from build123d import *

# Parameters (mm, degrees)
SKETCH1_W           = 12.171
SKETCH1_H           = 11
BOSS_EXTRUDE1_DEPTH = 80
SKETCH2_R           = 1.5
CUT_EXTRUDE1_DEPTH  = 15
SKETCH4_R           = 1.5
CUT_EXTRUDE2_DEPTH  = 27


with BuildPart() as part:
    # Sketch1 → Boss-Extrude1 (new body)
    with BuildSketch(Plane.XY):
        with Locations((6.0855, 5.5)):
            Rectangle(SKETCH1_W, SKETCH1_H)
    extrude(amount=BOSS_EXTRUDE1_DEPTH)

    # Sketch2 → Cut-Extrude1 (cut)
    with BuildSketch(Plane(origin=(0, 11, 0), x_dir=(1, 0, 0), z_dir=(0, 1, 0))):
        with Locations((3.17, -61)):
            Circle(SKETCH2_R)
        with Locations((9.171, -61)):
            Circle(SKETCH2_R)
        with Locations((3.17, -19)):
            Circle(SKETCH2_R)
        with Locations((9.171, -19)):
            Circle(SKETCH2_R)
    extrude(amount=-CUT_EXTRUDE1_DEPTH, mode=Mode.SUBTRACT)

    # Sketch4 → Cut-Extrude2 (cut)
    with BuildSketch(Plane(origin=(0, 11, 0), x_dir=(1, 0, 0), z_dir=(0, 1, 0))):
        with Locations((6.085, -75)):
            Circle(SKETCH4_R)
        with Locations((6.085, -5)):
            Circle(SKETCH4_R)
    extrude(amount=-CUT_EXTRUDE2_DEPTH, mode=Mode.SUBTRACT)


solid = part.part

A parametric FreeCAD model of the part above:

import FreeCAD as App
import Part
import Sketcher

doc = App.newDocument("Part")
params = doc.addObject("Spreadsheet::Sheet", "Params")
for row, (alias, value) in enumerate([
    ("sketch1_height", "11 mm"),
    ("pad1_length", "80 mm"),
    ("sketch2_diameter", "3 mm"),
    ("pocket1_length", "15 mm"),
    ("sketch3_diameter", "3 mm"),
    ("pocket2_length", "27 mm"),
], start=1):
    params.set(f"A{row}", alias)
    params.set(f"B{row}", "=" + value)
    params.setAlias(f"B{row}", alias)

body = doc.addObject("PartDesign::Body", "Body")

# Sketch on XY plane
sketch1 = body.newObject("Sketcher::SketchObject", "Sketch")
sketch1.AttachmentSupport = (doc.getObject("XY_Plane"), [""])
sketch1.MapMode = "FlatFace"
sketch1.addGeometry(Part.LineSegment(App.Vector(0, 11, 0), App.Vector(0, 0, 0)), False)
sketch1.addGeometry(Part.LineSegment(App.Vector(0, 0, 0), App.Vector(12, 0, 0)), False)
sketch1.addGeometry(Part.LineSegment(App.Vector(12, 0, 0), App.Vector(12, 11, 0)), False)
sketch1.addGeometry(Part.LineSegment(App.Vector(12, 11, 0), App.Vector(0, 11, 0)), False)
sketch1.addConstraint(Sketcher.Constraint("Coincident", 0, 2, 1, 1))
sketch1.addConstraint(Sketcher.Constraint("Coincident", 1, 2, 2, 1))
sketch1.addConstraint(Sketcher.Constraint("Coincident", 2, 2, 3, 1))
sketch1.addConstraint(Sketcher.Constraint("Coincident", 3, 2, 0, 1))
sketch1.addConstraint(Sketcher.Constraint("Vertical", 0))
sketch1.addConstraint(Sketcher.Constraint("Horizontal", 1))
sketch1.addConstraint(Sketcher.Constraint("Vertical", 2))
sketch1.addConstraint(Sketcher.Constraint("Horizontal", 3))
sketch1.addConstraint(Sketcher.Constraint("Coincident", 0, 2, -1, 1))
sketch1.addConstraint(Sketcher.Constraint("DistanceY", 0, 2, 0, 1, 11.0))
sketch1.addConstraint(Sketcher.Constraint("DistanceX", 1, 1, 1, 2, 12.171))
sketch1.setExpression("Constraints[9]", "Params.sketch1_height")
pad1 = body.newObject("PartDesign::Pad", "Pad")
pad1.Profile = sketch1
pad1.setExpression("Length", "Params.pad1_length")

# Sketch on XZ plane
sketch2 = body.newObject("Sketcher::SketchObject", "Sketch001")
sketch2.AttachmentSupport = (doc.getObject("XZ_Plane"), [""])
sketch2.MapMode = "FlatFace"
sketch2.AttachmentOffset = App.Placement(App.Vector(0, 0, -11), App.Rotation())
sketch2.addGeometry(Part.Circle(App.Vector(3.2, 61, 0), App.Vector(0, 0, 1), 1.5), False)
sketch2.addGeometry(Part.Circle(App.Vector(9.2, 61, 0), App.Vector(0, 0, 1), 1.5), False)
sketch2.addGeometry(Part.Circle(App.Vector(3.2, 19, 0), App.Vector(0, 0, 1), 1.5), False)
sketch2.addGeometry(Part.Circle(App.Vector(9.2, 19, 0), App.Vector(0, 0, 1), 1.5), False)
sketch2.addConstraint(Sketcher.Constraint("Equal", 0, 1))
sketch2.addConstraint(Sketcher.Constraint("Equal", 1, 2))
sketch2.addConstraint(Sketcher.Constraint("Equal", 2, 3))
sketch2.addConstraint(Sketcher.Constraint("Horizontal", 0, 3, 1, 3))
sketch2.addConstraint(Sketcher.Constraint("Horizontal", 2, 3, 3, 3))
sketch2.addConstraint(Sketcher.Constraint("Vertical", 0, 3, 2, 3))
sketch2.addConstraint(Sketcher.Constraint("Vertical", 1, 3, 3, 3))
sketch2.addConstraint(Sketcher.Constraint("Diameter", 0, 3.0))
sketch2.addConstraint(Sketcher.Constraint("DistanceY", -1, 1, 0, 3, 61.0))
sketch2.addConstraint(Sketcher.Constraint("DistanceY", -1, 1, 2, 3, 19.0))
sketch2.addConstraint(Sketcher.Constraint("DistanceX", -1, 1, 0, 3, 3.17))
sketch2.addConstraint(Sketcher.Constraint("DistanceX", -1, 1, 1, 3, 9.171))
sketch2.setExpression("Constraints[7]", "Params.sketch2_diameter")
pocket1 = body.newObject("PartDesign::Pocket", "Pocket")
pocket1.Profile = sketch2
pocket1.setExpression("Length", "Params.pocket1_length")
pocket1.Reversed = True

# Sketch on XZ plane
sketch3 = body.newObject("Sketcher::SketchObject", "Sketch002")
sketch3.AttachmentSupport = (doc.getObject("XZ_Plane"), [""])
sketch3.MapMode = "FlatFace"
sketch3.AttachmentOffset = App.Placement(App.Vector(0, 0, -11), App.Rotation())
sketch3.addGeometry(Part.Circle(App.Vector(6.1, 75, 0), App.Vector(0, 0, 1), 1.5), False)
sketch3.addGeometry(Part.Circle(App.Vector(6.1, 5, 0), App.Vector(0, 0, 1), 1.5), False)
sketch3.addConstraint(Sketcher.Constraint("Equal", 0, 1))
sketch3.addConstraint(Sketcher.Constraint("Vertical", 0, 3, 1, 3))
sketch3.addConstraint(Sketcher.Constraint("Diameter", 0, 3.0))
sketch3.addConstraint(Sketcher.Constraint("DistanceY", -1, 1, 0, 3, 75.0))
sketch3.addConstraint(Sketcher.Constraint("DistanceY", -1, 1, 1, 3, 5.0))
sketch3.addConstraint(Sketcher.Constraint("DistanceX", -1, 1, 0, 3, 6.085))
sketch3.setExpression("Constraints[2]", "Params.sketch3_diameter")
pocket2 = body.newObject("PartDesign::Pocket", "Pocket001")
pocket2.Profile = sketch3
pocket2.setExpression("Length", "Params.pocket2_length")
pocket2.Reversed = True

doc.recompute()
